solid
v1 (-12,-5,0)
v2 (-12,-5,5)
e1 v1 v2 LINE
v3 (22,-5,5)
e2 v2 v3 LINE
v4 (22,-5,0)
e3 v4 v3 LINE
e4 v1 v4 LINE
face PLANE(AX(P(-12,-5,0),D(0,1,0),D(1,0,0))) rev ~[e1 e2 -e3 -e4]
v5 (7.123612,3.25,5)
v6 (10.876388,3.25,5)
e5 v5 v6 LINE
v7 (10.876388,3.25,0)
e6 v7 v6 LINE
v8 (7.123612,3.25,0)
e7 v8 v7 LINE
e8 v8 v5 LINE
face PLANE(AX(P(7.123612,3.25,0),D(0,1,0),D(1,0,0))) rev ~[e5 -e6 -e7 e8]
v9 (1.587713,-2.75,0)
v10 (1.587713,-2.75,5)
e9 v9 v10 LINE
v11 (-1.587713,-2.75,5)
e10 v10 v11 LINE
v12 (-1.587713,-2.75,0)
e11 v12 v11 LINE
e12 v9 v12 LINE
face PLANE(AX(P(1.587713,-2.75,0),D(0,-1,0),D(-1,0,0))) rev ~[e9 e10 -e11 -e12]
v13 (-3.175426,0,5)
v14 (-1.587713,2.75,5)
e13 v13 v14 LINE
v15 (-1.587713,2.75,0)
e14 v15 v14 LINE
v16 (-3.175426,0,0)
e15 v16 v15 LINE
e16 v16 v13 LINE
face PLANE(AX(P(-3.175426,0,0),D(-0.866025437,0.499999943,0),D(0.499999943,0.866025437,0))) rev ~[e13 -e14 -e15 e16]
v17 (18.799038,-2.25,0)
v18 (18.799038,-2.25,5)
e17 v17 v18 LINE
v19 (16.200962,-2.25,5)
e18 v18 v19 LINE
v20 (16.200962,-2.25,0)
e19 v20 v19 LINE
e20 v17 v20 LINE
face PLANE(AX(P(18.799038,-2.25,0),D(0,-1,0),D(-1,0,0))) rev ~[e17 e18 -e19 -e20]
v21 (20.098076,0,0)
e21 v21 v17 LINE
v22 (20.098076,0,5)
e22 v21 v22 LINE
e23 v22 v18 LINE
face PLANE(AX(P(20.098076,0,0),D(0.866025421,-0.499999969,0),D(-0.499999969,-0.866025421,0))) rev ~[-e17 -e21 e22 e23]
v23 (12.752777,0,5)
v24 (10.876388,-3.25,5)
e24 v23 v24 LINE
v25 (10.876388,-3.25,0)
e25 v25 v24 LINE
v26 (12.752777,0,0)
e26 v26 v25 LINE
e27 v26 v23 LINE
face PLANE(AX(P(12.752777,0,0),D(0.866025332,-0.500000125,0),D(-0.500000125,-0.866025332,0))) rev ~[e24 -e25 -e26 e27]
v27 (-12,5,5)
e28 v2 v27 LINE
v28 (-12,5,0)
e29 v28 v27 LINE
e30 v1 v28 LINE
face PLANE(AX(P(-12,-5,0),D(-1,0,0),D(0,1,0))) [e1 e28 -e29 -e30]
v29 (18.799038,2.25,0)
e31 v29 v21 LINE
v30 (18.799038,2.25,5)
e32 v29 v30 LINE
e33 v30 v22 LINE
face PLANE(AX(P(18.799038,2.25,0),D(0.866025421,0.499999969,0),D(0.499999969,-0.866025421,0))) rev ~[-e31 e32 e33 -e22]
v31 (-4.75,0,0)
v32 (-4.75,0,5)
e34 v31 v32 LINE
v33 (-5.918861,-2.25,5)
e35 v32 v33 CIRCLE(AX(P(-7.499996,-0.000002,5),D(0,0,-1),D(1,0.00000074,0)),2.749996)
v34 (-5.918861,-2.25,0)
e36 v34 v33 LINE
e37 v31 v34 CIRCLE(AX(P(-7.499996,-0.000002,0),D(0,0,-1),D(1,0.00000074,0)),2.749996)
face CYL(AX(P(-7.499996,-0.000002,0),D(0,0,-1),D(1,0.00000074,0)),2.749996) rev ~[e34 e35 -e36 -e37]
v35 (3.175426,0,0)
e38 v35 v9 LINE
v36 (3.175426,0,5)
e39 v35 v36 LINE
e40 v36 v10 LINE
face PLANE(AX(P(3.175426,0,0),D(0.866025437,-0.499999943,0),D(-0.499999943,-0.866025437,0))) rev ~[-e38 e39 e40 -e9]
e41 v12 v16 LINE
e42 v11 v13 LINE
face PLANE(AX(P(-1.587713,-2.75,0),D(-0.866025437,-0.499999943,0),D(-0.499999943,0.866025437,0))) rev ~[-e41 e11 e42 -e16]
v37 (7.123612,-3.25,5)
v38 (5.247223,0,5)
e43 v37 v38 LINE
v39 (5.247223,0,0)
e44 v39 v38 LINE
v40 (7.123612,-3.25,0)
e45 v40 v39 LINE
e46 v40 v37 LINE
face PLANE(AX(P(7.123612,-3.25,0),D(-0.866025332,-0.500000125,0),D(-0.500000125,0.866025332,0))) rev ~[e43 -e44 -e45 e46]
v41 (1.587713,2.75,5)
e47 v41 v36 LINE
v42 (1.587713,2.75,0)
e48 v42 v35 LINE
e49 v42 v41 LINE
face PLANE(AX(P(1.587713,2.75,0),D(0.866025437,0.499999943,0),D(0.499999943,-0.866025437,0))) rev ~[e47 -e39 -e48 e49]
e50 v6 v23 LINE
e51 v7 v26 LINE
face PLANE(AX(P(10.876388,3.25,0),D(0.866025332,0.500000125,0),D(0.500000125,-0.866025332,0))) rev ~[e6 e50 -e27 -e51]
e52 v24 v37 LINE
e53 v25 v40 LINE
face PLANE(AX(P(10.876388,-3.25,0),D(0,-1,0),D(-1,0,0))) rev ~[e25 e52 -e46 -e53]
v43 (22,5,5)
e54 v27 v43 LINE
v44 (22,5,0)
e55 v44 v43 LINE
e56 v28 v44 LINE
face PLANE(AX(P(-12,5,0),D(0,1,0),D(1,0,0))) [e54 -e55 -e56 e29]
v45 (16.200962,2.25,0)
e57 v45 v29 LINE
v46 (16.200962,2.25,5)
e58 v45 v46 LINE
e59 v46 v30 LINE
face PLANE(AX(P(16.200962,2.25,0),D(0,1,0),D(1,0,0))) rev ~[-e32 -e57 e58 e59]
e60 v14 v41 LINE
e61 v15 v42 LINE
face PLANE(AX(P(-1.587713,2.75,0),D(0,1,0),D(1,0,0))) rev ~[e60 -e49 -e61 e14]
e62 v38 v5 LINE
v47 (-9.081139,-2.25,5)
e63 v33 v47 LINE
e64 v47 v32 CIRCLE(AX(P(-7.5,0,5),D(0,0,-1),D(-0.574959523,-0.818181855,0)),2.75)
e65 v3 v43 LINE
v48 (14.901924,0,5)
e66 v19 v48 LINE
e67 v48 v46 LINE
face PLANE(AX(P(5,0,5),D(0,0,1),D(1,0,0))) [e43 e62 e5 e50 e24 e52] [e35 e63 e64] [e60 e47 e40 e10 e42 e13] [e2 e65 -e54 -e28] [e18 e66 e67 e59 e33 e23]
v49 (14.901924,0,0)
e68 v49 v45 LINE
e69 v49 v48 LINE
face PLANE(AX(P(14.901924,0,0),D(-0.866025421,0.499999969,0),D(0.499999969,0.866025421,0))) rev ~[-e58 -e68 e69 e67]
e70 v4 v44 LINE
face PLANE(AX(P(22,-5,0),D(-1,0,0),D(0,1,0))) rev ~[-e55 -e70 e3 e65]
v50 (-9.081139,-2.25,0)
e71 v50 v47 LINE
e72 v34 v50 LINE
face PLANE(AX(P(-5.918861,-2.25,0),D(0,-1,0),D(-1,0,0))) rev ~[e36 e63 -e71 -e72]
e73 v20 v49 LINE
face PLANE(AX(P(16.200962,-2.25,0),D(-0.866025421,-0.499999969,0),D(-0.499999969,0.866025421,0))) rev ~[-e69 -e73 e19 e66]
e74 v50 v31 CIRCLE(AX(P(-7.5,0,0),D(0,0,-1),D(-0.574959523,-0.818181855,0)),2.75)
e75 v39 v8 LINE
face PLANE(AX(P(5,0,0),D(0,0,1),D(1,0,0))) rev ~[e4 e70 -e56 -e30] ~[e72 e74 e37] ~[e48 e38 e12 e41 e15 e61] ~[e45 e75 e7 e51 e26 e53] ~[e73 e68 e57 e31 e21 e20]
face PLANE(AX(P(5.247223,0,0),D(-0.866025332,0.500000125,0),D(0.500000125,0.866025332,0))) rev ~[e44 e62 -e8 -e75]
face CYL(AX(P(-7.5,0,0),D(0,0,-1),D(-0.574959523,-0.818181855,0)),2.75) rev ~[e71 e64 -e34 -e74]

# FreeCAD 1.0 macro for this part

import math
import FreeCAD as App
import Part
import Sketcher
from FreeCAD import Vector
Q = App.Units.Quantity

doc = App.newDocument("Part")
params = doc.addObject("Spreadsheet::Sheet", "Params")
for row, (alias, value) in enumerate([
    ("sketch1_width", "34 mm"),
    ("sketch1_height", "10 mm"),
    ("sketch1_radius", "2.75 mm"),
    ("pad1_length", "5 mm"),
], start=1):
    params.set(f"A{row}", alias)
    params.set(f"B{row}", "=" + value)
    params.setAlias(f"B{row}", alias)

body = doc.addObject("PartDesign::Body", "Body")

# Sketch on XY plane
sketch1 = doc.addObject("Sketcher::SketchObject", "Sketch")
body.addObject(sketch1)
sketch1.AttachmentSupport = (doc.XY_Plane, [""])
sketch1.MapMode = "FlatFace"
sketch1.addGeometry([
    Part.LineSegment(Vector(-12, 5, 0), Vector(-12, -5, 0)),  # 0
    Part.LineSegment(Vector(-12, -5, 0), Vector(22, -5, 0)),  # 1
    Part.LineSegment(Vector(22, -5, 0), Vector(22, 5, 0)),  # 2
    Part.LineSegment(Vector(22, 5, 0), Vector(-12, 5, 0)),  # 3
    Part.ArcOfCircle(Part.Circle(Vector(-7.5, 0, 0), Vector(0, 0, 1), 2.7), math.radians(-55), math.radians(0)),  # 4
    Part.LineSegment(Vector(-5.9, -2.2, 0), Vector(-9.1, -2.2, 0)),  # 5
    Part.ArcOfCircle(Part.Circle(Vector(-7.5, 0, 0), Vector(0, 0, 1), 2.8), math.radians(0), math.radians(235)),  # 6
    Part.LineSegment(Vector(-1.6, -2.8, 0), Vector(-3.2, 0, 0)),  # 7
    Part.LineSegment(Vector(-3.2, 0, 0), Vector(-1.6, 2.8, 0)),  # 8
    Part.LineSegment(Vector(-1.6, 2.8, 0), Vector(1.6, 2.8, 0)),  # 9
    Part.LineSegment(Vector(1.6, 2.8, 0), Vector(3.2, 0, 0)),  # 10
    Part.LineSegment(Vector(3.2, 0, 0), Vector(1.6, -2.8, 0)),  # 11
    Part.LineSegment(Vector(1.6, -2.8, 0), Vector(-1.6, -2.8, 0)),  # 12
    Part.LineSegment(Vector(7.1, -3.2, 0), Vector(5.2, 0, 0)),  # 13
    Part.LineSegment(Vector(5.2, 0, 0), Vector(7.1, 3.2, 0)),  # 14
    Part.LineSegment(Vector(7.1, 3.2, 0), Vector(10.9, 3.2, 0)),  # 15
    Part.LineSegment(Vector(10.9, 3.2, 0), Vector(12.8, 0, 0)),  # 16
    Part.LineSegment(Vector(12.8, 0, 0), Vector(10.9, -3.2, 0)),  # 17
    Part.LineSegment(Vector(10.9, -3.2, 0), Vector(7.1, -3.2, 0)),  # 18
    Part.LineSegment(Vector(18.8, 2.2, 0), Vector(20.1, 0, 0)),  # 19
    Part.LineSegment(Vector(20.1, 0, 0), Vector(18.8, -2.2, 0)),  # 20
    Part.LineSegment(Vector(18.8, -2.2, 0), Vector(16.2, -2.2, 0)),  # 21
    Part.LineSegment(Vector(16.2, -2.2, 0), Vector(14.9, 0, 0)),  # 22
    Part.LineSegment(Vector(14.9, 0, 0), Vector(16.2, 2.2, 0)),  # 23
    Part.LineSegment(Vector(16.2, 2.2, 0), Vector(18.8, 2.2, 0)),  # 24
], False)
sketch1.addConstraint([
    Sketcher.Constraint("Coincident", 0, 2, 1, 1),
    Sketcher.Constraint("Coincident", 1, 2, 2, 1),
    Sketcher.Constraint("Coincident", 2, 2, 3, 1),
    Sketcher.Constraint("Coincident", 3, 2, 0, 1),
    Sketcher.Constraint("Coincident", 4, 1, 5, 1),
    Sketcher.Constraint("Coincident", 5, 2, 6, 2),
    Sketcher.Constraint("Tangent", 6, 1, 4, 2),
    Sketcher.Constraint("Coincident", 7, 2, 8, 1),
    Sketcher.Constraint("Coincident", 8, 2, 9, 1),
    Sketcher.Constraint("Coincident", 9, 2, 10, 1),
    Sketcher.Constraint("Coincident", 10, 2, 11, 1),
    Sketcher.Constraint("Coincident", 11, 2, 12, 1),
    Sketcher.Constraint("Coincident", 12, 2, 7, 1),
    Sketcher.Constraint("Coincident", 13, 2, 14, 1),
    Sketcher.Constraint("Coincident", 14, 2, 15, 1),
    Sketcher.Constraint("Coincident", 15, 2, 16, 1),
    Sketcher.Constraint("Coincident", 16, 2, 17, 1),
    Sketcher.Constraint("Coincident", 17, 2, 18, 1),
    Sketcher.Constraint("Coincident", 18, 2, 13, 1),
    Sketcher.Constraint("Coincident", 19, 2, 20, 1),
    Sketcher.Constraint("Coincident", 20, 2, 21, 1),
    Sketcher.Constraint("Coincident", 21, 2, 22, 1),
    Sketcher.Constraint("Coincident", 22, 2, 23, 1),
    Sketcher.Constraint("Coincident", 23, 2, 24, 1),
    Sketcher.Constraint("Coincident", 24, 2, 19, 1),
    Sketcher.Constraint("Vertical", 0),
    Sketcher.Constraint("Horizontal", 1),
    Sketcher.Constraint("Vertical", 2),
    Sketcher.Constraint("Horizontal", 3),
    Sketcher.Constraint("Horizontal", 5),
    Sketcher.Constraint("Horizontal", 9),
    Sketcher.Constraint("Horizontal", 12),
    Sketcher.Constraint("Horizontal", 15),
    Sketcher.Constraint("Horizontal", 18),
    Sketcher.Constraint("Horizontal", 21),
    Sketcher.Constraint("Horizontal", 24),
    Sketcher.Constraint("Symmetric", 7, 2, 10, 2, -1, 1),
    Sketcher.Constraint("Symmetric", 8, 2, 11, 2, -1, 1),
    Sketcher.Constraint("Symmetric", 15, 2, 17, 2, -1),
    Sketcher.Constraint("Symmetric", 21, 2, 23, 2, -1),
    Sketcher.Constraint("PointOnObject", 6, 3, -1),
    Sketcher.Constraint("PointOnObject", 6, 1, -1),
    Sketcher.Constraint("PointOnObject", 7, 2, -1),
    Sketcher.Constraint("PointOnObject", 13, 2, -1),
    Sketcher.Constraint("PointOnObject", 16, 2, -1),
    Sketcher.Constraint("PointOnObject", 19, 2, -1),
    Sketcher.Constraint("PointOnObject", 22, 2, -1),
    Sketcher.Constraint("Parallel", 7, 10),
    Sketcher.Constraint("Parallel", 10, 13),
    Sketcher.Constraint("Parallel", 11, 14),
    Sketcher.Constraint("Parallel", 13, 16),
    Sketcher.Constraint("Parallel", 14, 17),
    Sketcher.Constraint("Parallel", 16, 19),
    Sketcher.Constraint("Parallel", 17, 20),
    Sketcher.Constraint("Parallel", 19, 22),
    Sketcher.Constraint("Horizontal", 5, 2, 20, 2),
    Sketcher.Constraint("DistanceX", 1, 1, 1, 2, 34.0),
    Sketcher.Constraint("DistanceY", 0, 2, 0, 1, 10.0),
    Sketcher.Constraint("Angle", 7, Q("119.999996 deg")),
    Sketcher.Constraint("Radius", 6, 2.75),
    Sketcher.Constraint("DistanceX", 0, 2, -1, 1, 12.0),
    Sketcher.Constraint("DistanceY", 0, 2, -1, 1, 5.0),
    Sketcher.Constraint("DistanceY", 4, 1, 8, 2, 5.0),
    Sketcher.Constraint("DistanceY", 11, 2, 14, 2, 6.0),
    Sketcher.Constraint("DistanceX", 6, 3, -1, 1, 7.5),
    Sketcher.Constraint("DistanceY", 11, 2, 9, 2, 5.5),
    Sketcher.Constraint("Radius", 4, 2.749996),
    Sketcher.Constraint("DistanceX", 9, 2, 14, 2, 5.535899),
    Sketcher.Constraint("DistanceX", 16, 2, 19, 2, 7.345299),
    Sketcher.Constraint("DistanceX", 9, 1, 9, 2, 3.175426),
    Sketcher.Constraint("DistanceX", 15, 1, 15, 2, 3.752776),
    Sketcher.Constraint("DistanceX", 21, 2, 21, 1, 2.598076),
])
sketch1.setExpression("Constraints[56]", "Params.sketch1_width")
sketch1.setExpression("Constraints[57]", "Params.sketch1_height")
sketch1.setExpression("Constraints[59]", "Params.sketch1_radius")
pad1 = doc.addObject("PartDesign::Pad", "Pad")
body.addObject(pad1)
pad1.Profile = sketch1
pad1.setExpression("Length", "Params.pad1_length")

doc.recompute()
